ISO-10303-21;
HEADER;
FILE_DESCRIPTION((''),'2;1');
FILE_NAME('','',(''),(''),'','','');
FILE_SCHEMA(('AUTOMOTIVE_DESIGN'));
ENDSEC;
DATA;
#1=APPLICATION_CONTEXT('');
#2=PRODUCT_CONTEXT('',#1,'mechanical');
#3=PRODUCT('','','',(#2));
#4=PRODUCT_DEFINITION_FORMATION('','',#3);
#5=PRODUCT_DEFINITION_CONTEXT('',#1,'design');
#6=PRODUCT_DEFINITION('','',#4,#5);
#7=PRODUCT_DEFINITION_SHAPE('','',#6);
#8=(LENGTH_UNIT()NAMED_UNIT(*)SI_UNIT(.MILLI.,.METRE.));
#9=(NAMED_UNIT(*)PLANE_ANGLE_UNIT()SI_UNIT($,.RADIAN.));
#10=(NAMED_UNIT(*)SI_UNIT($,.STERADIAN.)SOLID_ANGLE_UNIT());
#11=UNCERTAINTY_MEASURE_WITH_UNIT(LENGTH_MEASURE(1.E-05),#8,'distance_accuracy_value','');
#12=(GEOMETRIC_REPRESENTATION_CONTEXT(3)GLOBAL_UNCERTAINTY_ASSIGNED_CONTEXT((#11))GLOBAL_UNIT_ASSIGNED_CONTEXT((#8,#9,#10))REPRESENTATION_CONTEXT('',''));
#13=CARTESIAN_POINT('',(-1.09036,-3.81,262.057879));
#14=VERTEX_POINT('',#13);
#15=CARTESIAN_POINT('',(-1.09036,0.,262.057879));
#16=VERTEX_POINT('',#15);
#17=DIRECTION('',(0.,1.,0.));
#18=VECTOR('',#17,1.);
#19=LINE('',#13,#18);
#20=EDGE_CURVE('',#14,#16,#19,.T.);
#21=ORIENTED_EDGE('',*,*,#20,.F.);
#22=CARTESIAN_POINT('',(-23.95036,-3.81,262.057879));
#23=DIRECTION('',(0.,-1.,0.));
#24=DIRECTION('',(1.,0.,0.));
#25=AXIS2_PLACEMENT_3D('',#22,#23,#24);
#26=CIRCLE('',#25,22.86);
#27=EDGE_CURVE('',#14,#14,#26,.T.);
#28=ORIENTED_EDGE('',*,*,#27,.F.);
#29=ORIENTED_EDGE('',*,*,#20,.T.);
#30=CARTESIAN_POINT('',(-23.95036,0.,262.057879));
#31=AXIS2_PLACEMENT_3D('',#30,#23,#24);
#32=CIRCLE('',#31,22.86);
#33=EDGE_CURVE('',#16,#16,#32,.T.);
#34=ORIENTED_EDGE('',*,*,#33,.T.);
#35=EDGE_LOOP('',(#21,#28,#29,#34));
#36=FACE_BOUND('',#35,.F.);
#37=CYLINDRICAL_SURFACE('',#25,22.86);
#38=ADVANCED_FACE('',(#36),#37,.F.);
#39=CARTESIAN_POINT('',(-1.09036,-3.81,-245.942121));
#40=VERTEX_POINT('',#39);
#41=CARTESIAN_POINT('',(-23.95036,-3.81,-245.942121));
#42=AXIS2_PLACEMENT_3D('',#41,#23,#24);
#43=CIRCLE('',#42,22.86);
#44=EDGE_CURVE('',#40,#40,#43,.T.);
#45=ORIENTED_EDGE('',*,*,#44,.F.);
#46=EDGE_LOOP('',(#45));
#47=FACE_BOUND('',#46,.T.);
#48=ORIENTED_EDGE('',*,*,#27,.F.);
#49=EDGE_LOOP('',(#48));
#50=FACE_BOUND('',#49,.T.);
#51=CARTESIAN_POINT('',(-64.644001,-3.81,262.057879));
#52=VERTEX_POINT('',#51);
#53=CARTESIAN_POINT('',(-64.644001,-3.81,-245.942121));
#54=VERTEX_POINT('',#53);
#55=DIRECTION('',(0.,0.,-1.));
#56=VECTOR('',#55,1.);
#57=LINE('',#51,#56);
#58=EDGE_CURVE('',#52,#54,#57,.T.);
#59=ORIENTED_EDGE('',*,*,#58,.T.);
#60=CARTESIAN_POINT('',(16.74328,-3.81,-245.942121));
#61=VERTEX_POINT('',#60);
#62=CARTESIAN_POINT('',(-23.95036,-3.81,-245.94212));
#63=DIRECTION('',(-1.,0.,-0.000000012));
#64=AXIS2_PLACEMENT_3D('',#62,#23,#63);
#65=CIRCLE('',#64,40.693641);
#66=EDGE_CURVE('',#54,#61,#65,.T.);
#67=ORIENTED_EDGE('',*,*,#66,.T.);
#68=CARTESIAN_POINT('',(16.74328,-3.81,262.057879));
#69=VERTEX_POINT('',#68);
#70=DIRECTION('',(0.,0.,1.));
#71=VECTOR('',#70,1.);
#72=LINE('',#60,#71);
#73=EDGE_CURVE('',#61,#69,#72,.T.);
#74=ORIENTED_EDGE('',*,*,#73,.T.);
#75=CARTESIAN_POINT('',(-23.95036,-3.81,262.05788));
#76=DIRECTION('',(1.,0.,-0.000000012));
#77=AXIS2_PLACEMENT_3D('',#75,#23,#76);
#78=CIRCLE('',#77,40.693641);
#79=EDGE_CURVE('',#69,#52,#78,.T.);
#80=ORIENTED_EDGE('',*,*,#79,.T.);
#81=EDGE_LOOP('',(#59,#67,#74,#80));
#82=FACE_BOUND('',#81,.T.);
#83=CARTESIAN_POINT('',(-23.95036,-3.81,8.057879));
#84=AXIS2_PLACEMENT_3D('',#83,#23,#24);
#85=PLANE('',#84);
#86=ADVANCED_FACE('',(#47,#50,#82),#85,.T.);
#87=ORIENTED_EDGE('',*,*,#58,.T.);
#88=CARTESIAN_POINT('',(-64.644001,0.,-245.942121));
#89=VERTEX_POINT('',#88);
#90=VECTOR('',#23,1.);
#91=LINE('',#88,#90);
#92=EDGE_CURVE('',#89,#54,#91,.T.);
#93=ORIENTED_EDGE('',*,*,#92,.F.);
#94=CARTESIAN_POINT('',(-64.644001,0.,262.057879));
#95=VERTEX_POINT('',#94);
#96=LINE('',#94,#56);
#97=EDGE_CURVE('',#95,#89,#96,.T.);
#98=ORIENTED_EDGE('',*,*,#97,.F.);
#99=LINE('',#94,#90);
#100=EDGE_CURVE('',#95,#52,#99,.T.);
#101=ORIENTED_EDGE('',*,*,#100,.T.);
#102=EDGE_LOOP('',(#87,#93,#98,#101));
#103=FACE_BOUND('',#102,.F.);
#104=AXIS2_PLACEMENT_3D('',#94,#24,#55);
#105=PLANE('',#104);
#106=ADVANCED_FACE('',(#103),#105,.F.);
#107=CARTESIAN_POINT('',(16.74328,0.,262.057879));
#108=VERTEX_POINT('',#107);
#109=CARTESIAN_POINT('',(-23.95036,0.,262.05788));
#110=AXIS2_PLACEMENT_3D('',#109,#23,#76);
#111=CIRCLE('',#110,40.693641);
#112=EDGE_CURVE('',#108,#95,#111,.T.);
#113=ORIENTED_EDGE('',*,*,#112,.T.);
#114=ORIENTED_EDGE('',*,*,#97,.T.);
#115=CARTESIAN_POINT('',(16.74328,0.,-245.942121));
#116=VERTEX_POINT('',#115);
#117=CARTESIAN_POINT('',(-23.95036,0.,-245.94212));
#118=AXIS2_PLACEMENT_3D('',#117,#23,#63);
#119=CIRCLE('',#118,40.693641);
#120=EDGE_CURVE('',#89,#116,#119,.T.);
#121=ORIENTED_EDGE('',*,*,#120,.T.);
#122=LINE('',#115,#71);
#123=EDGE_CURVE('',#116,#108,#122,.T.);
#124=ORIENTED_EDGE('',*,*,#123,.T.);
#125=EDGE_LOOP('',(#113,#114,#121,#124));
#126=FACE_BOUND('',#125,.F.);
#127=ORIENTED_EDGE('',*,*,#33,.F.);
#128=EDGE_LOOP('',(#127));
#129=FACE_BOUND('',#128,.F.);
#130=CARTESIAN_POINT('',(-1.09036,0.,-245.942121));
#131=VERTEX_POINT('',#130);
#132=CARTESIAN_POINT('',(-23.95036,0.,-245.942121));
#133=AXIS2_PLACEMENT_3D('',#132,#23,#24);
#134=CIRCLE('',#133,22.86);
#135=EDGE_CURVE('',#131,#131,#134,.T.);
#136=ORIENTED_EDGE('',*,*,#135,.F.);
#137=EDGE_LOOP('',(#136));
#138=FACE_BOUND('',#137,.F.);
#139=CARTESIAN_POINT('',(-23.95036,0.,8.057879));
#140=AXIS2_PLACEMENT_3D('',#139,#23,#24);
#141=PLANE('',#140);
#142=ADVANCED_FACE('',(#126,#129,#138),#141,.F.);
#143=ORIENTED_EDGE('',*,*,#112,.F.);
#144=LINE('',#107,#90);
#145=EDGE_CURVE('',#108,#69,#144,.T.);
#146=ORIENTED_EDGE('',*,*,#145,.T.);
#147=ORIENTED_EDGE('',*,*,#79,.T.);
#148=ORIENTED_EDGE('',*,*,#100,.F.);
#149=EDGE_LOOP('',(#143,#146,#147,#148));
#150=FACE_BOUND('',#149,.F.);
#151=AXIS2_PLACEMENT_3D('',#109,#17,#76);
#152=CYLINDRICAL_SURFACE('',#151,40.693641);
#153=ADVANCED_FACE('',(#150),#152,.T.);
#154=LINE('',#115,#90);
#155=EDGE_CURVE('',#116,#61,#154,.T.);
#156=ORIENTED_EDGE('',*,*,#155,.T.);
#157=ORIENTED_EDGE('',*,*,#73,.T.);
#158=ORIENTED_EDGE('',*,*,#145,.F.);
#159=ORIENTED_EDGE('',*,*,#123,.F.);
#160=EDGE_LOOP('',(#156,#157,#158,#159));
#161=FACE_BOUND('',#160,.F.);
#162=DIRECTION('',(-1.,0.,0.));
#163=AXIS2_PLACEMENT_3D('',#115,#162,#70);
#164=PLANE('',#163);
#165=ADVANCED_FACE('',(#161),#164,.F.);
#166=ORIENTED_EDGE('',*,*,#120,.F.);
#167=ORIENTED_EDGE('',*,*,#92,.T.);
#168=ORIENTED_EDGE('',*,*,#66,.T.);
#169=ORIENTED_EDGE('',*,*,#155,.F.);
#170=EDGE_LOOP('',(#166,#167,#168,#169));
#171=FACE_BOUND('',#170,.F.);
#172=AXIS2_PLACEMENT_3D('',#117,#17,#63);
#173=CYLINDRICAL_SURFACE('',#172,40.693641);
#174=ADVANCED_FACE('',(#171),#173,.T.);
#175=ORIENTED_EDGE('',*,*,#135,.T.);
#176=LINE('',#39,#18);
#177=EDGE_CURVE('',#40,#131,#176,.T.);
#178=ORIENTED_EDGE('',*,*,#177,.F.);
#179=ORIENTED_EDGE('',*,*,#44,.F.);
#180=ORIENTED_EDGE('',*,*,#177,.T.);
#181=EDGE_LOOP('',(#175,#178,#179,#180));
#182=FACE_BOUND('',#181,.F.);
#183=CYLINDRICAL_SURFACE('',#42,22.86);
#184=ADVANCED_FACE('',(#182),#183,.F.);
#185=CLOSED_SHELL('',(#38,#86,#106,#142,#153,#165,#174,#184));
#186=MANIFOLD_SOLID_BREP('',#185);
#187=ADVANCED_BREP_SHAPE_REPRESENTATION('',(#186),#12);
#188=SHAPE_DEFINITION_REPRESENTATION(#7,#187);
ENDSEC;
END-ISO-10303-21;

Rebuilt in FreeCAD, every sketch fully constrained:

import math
import FreeCAD as App
import Part
import Sketcher
Q = App.Units.Quantity

doc = App.newDocument("Part")
body = doc.addObject("PartDesign::Body", "Body")

# Sketch on XZ plane
sketch1 = body.newObject("Sketcher::SketchObject", "Sketch")
sketch1.AttachmentSupport = (doc.getObject("XZ_Plane"), [""])
sketch1.MapMode = "FlatFace"
sketch1.addGeometry(Part.LineSegment(App.Vector(-64.644001, 262.057879, 0), App.Vector(-64.644001, -245.942121, 0)), False)
sketch1.addGeometry(Part.ArcOfCircle(Part.Circle(App.Vector(-23.95036, -245.94212, 0), App.Vector(0, 0, 1), 40.693641), math.radians(-179.999999), math.radians(-0.000001)), False)
sketch1.addGeometry(Part.LineSegment(App.Vector(16.74328, -245.942121, 0), App.Vector(16.74328, 262.057879, 0)), False)
sketch1.addGeometry(Part.ArcOfCircle(Part.Circle(App.Vector(-23.95036, 262.05788, 0), App.Vector(0, 0, 1), 40.693641), math.radians(-0.000001), math.radians(180.000001)), False)
sketch1.addConstraint(Sketcher.Constraint("Tangent", 0, 2, 1, 1))
sketch1.addConstraint(Sketcher.Constraint("Tangent", 1, 2, 2, 1))
sketch1.addConstraint(Sketcher.Constraint("Tangent", 2, 2, 3, 1))
sketch1.addConstraint(Sketcher.Constraint("Tangent", 3, 2, 0, 1))
sketch1.addConstraint(Sketcher.Constraint("Vertical", 0))
sketch1.addConstraint(Sketcher.Constraint("Vertical", 2))
sketch1.addConstraint(Sketcher.Constraint("DistanceY", 0, 2, 0, 1, Q("20 in")))
sketch1.addConstraint(Sketcher.Constraint("Radius", 1, 40.693641))
sketch1.addConstraint(Sketcher.Constraint("DistanceX", 0, 2, -1, 1, 64.644001))
sketch1.addConstraint(Sketcher.Constraint("DistanceY", 1, 3, -1, 1, 245.94212))
pad1 = body.newObject("PartDesign::Pad", "Pad")
pad1.Profile = sketch1
pad1.Length = Q("0.15 in")

# Sketch on XZ plane
sketch2 = body.newObject("Sketcher::SketchObject", "Sketch001")
sketch2.AttachmentSupport = (doc.getObject("XZ_Plane"), [""])
sketch2.MapMode = "FlatFace"
sketch2.AttachmentOffset = App.Placement(App.Vector(0, 0, 0.15 * 25.4), App.Rotation())
sketch2.addGeometry(Part.Circle(App.Vector(-23.95036, 262.057879, 0), App.Vector(0, 0, 1), 22.86), False)
sketch2.addGeometry(Part.Circle(App.Vector(-23.95036, -245.942121, 0), App.Vector(0, 0, 1), 22.86), False)
sketch2.addConstraint(Sketcher.Constraint("Equal", 0, 1))
sketch2.addConstraint(Sketcher.Constraint("Vertical", 0, 3, 1, 3))
sketch2.addConstraint(Sketcher.Constraint("Diameter", 0, Q("1.8 in")))
sketch2.addConstraint(Sketcher.Constraint("DistanceY", 1, 3, 0, 3, Q("20 in")))
sketch2.addConstraint(Sketcher.Constraint("DistanceX", 0, 3, -1, 1, 23.95036))
sketch2.addConstraint(Sketcher.Constraint("DistanceY", -1, 1, 0, 3, 262.057879))
pocket1 = body.newObject("PartDesign::Pocket", "Pocket")
pocket1.Profile = sketch2
pocket1.Length = Q("1 in")

doc.recompute()
